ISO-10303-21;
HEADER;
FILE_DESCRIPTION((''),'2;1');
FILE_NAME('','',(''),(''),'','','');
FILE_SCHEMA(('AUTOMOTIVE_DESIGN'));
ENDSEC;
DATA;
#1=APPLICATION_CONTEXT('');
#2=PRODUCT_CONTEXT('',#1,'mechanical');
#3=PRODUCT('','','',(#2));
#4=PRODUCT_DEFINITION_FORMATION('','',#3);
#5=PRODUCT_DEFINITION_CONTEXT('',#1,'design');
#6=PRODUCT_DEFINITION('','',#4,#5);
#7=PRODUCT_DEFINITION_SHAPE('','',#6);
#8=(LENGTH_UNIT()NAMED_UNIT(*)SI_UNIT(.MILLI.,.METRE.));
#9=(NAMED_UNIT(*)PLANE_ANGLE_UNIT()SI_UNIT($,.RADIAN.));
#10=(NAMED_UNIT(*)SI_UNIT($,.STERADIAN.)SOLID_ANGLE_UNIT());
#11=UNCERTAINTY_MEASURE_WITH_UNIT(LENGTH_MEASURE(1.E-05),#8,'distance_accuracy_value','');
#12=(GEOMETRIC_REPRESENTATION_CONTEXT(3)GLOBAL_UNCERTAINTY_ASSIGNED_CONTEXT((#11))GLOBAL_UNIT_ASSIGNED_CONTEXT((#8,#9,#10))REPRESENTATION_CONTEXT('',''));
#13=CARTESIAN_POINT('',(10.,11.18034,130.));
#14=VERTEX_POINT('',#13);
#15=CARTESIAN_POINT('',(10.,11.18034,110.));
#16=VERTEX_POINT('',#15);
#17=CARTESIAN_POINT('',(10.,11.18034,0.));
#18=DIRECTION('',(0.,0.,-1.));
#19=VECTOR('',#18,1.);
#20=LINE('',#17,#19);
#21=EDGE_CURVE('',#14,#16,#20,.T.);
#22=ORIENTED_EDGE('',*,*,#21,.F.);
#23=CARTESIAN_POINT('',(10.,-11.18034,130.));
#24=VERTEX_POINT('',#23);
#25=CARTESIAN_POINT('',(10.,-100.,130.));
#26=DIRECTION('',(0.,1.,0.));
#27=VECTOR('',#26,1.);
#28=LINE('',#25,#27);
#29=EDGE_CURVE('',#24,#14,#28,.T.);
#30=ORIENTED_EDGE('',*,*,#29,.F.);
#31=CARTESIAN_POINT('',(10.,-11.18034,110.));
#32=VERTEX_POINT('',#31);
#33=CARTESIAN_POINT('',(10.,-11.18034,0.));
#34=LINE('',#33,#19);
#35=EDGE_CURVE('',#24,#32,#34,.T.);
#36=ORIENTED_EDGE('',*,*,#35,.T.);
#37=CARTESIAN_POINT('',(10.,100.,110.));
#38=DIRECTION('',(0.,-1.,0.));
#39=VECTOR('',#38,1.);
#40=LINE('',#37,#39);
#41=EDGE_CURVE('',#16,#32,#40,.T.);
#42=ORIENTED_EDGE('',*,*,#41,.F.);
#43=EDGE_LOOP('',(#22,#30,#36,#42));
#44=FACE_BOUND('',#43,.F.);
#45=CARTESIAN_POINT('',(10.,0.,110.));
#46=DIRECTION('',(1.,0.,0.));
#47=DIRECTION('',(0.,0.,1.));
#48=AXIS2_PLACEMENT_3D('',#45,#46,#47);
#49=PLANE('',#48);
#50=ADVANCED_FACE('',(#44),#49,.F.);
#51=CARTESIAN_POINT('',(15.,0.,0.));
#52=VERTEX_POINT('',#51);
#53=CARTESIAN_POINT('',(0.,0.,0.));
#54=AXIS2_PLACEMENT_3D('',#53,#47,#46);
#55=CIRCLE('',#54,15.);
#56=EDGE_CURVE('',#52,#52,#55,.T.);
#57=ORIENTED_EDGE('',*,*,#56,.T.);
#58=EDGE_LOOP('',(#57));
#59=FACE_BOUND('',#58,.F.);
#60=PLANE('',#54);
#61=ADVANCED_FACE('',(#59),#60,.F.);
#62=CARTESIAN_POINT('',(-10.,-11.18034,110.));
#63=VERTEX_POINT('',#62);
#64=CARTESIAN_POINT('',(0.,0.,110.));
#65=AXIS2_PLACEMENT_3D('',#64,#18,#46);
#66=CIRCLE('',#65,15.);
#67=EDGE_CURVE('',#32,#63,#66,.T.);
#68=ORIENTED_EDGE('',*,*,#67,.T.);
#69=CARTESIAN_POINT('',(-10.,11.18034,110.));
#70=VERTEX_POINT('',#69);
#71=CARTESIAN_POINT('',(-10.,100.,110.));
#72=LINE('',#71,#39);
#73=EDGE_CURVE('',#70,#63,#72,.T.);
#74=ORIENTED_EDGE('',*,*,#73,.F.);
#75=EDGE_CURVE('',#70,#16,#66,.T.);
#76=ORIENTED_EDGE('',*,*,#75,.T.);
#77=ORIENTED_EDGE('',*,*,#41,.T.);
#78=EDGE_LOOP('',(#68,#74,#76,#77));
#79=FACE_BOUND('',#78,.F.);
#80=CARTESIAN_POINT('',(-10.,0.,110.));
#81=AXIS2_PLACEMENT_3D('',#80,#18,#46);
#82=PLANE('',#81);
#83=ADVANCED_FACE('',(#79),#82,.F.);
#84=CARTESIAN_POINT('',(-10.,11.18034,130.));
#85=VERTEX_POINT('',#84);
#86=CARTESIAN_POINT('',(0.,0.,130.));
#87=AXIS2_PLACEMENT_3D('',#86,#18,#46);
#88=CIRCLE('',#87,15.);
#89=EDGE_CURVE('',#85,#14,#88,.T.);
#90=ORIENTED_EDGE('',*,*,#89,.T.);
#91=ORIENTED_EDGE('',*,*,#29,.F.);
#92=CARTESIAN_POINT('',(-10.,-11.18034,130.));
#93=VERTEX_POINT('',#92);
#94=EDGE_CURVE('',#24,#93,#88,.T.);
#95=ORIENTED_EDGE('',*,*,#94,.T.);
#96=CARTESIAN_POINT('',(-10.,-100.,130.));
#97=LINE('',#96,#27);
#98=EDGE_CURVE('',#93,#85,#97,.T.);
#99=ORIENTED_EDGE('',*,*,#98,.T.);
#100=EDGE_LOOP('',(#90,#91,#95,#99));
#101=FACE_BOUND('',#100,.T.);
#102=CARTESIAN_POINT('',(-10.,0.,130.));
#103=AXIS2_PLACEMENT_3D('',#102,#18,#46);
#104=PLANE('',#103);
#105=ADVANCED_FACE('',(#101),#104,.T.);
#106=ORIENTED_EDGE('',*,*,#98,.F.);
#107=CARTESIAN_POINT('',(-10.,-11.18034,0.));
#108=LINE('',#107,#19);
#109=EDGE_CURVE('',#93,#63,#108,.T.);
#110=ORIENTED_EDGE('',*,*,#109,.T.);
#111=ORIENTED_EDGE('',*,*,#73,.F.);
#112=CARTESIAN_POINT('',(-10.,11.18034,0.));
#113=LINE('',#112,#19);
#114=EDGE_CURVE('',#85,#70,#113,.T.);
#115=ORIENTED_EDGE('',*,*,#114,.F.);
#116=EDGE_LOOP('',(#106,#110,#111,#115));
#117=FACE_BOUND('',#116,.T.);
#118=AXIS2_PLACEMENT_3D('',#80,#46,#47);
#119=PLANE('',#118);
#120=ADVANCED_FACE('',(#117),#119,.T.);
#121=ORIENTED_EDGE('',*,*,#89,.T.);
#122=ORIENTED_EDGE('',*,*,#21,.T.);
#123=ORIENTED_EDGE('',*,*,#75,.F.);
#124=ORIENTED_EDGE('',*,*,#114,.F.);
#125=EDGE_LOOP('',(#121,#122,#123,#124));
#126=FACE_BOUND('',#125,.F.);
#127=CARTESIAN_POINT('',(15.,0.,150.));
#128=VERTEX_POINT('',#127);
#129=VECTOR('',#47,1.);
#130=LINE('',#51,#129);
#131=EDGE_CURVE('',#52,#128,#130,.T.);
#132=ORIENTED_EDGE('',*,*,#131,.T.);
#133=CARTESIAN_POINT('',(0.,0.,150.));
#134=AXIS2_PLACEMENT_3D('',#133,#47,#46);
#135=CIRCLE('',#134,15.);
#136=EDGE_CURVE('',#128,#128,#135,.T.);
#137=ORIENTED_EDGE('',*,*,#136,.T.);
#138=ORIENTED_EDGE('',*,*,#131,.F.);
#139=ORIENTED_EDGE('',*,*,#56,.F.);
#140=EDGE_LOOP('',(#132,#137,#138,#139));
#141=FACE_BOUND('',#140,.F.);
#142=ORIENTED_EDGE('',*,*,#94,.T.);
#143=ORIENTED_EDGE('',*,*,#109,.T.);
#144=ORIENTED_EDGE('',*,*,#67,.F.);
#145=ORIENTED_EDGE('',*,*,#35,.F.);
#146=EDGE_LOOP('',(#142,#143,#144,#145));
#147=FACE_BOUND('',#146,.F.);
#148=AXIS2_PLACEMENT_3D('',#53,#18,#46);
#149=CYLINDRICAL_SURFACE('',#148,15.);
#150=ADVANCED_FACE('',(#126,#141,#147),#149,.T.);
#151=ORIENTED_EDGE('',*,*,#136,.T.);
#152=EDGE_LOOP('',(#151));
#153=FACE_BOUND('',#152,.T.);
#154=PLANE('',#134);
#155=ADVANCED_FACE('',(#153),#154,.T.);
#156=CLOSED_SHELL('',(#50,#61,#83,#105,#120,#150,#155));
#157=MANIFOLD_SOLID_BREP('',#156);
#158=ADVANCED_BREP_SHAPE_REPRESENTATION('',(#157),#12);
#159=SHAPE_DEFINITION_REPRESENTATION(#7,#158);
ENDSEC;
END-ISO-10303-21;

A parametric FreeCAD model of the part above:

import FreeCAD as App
import Part
import Sketcher


def add_polygon(sketch, points):
    """Adds a closed chain of lines whose ends are joined by coincident constraints."""
    first, n = sketch.GeometryCount, len(points)
    for a, b in zip(points, points[1:] + points[:1]):
        sketch.addGeometry(Part.LineSegment(App.Vector(*a, 0), App.Vector(*b, 0)), False)
    for i in range(n):
        sketch.addConstraint(Sketcher.Constraint("Coincident", first + i, 2, first + (i + 1) % n, 1))

doc = App.newDocument("Part")
body = doc.addObject("PartDesign::Body", "Body")

sketch1 = body.newObject("Sketcher::SketchObject", "Sketch")
sketch1.AttachmentSupport = (doc.getObject("XY_Plane"), [""])
sketch1.MapMode = "FlatFace"
sketch1.addGeometry(Part.Circle(App.Vector(0, 0, 0), App.Vector(0, 0, 1), 15), False)
sketch1.addConstraint([
    Sketcher.Constraint("Coincident", 0, 3, -1, 1),
    Sketcher.Constraint("Diameter", 0, 30.0),
])
pad1 = body.newObject("PartDesign::Pad", "Pad")
pad1.Profile = sketch1
pad1.Length = 150

sketch2 = body.newObject("Sketcher::SketchObject", "Sketch001")
sketch2.AttachmentSupport = (doc.getObject("XZ_Plane"), [""])
sketch2.MapMode = "FlatFace"
add_polygon(sketch2, [(-10, 130), (-10, 110), (10, 110), (10, 130)])
sketch2.addConstraint([
    Sketcher.Constraint("Vertical", 0),
    Sketcher.Constraint("Horizontal", 1),
    Sketcher.Constraint("Vertical", 2),
    Sketcher.Constraint("Horizontal", 3),
    Sketcher.Constraint("Equal", 3, 0),
    Sketcher.Constraint("DistanceX", 1, 1, 1, 2, 20.0),
    Sketcher.Constraint("DistanceX", 0, 2, -1, 1, 10.0),
    Sketcher.Constraint("DistanceY", -1, 1, 0, 2, 110.0),
])
pocket1 = body.newObject("PartDesign::Pocket", "Pocket")
pocket1.Profile = sketch2
pocket1.Length = 200
pocket1.Midplane = True

doc.recompute()
